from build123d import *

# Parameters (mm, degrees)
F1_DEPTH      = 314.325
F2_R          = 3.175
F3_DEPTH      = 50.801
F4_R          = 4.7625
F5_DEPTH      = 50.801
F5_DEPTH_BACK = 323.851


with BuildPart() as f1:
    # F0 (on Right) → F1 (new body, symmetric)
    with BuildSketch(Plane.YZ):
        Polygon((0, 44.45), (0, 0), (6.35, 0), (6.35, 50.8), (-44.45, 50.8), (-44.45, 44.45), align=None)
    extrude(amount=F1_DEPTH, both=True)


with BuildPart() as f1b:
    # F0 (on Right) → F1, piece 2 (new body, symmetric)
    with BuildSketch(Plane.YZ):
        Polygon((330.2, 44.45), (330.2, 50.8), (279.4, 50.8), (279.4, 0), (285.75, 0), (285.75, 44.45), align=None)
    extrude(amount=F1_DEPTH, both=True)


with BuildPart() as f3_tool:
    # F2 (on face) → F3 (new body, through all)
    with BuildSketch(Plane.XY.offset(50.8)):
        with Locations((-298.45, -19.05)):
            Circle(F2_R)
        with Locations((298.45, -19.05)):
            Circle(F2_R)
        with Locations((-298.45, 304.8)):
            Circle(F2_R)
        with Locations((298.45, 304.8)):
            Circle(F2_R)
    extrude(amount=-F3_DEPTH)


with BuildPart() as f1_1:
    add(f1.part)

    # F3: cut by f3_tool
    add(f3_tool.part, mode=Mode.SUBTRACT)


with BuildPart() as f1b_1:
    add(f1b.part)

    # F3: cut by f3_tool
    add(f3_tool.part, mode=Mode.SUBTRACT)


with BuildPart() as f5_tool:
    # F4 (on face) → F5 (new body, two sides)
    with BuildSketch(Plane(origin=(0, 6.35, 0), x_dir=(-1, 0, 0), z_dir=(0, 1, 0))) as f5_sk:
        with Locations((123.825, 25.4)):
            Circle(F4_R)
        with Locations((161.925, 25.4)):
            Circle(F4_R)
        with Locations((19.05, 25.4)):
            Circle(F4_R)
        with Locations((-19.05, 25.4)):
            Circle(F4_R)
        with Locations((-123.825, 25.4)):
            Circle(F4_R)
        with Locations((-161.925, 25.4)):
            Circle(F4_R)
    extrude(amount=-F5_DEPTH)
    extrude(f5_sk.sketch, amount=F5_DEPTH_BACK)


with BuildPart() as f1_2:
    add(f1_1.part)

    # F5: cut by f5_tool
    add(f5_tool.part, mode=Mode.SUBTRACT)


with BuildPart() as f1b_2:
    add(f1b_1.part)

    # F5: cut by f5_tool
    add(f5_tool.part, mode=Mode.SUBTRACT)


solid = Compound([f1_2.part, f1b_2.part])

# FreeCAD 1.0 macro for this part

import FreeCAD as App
import Part
import Sketcher
Q = App.Units.Quantity

doc = App.newDocument("Part")
body = doc.addObject("PartDesign::Body", "Body")

# Sketch on YZ plane
sketch1 = doc.addObject("Sketcher::SketchObject", "Sketch")
body.addObject(sketch1)
sketch1.AttachmentSupport = (doc.YZ_Plane, [""])
sketch1.MapMode = "FlatFace"
sketch1.addGeometry(Part.LineSegment(App.Vector(0, 44.45, 0), App.Vector(0, 0, 0)), False)
sketch1.addGeometry(Part.LineSegment(App.Vector(0, 0, 0), App.Vector(6.35, 0, 0)), False)
sketch1.addGeometry(Part.LineSegment(App.Vector(6.35, 0, 0), App.Vector(6.35, 50.8, 0)), False)
sketch1.addGeometry(Part.LineSegment(App.Vector(6.35, 50.8, 0), App.Vector(-44.45, 50.8, 0)), False)
sketch1.addGeometry(Part.LineSegment(App.Vector(-44.45, 50.8, 0), App.Vector(-44.45, 44.45, 0)), False)
sketch1.addGeometry(Part.LineSegment(App.Vector(-44.45, 44.45, 0), App.Vector(0, 44.45, 0)), False)
sketch1.addConstraint(Sketcher.Constraint("Coincident", 0, 2, 1, 1))
sketch1.addConstraint(Sketcher.Constraint("Coincident", 1, 2, 2, 1))
sketch1.addConstraint(Sketcher.Constraint("Coincident", 2, 2, 3, 1))
sketch1.addConstraint(Sketcher.Constraint("Coincident", 3, 2, 4, 1))
sketch1.addConstraint(Sketcher.Constraint("Coincident", 4, 2, 5, 1))
sketch1.addConstraint(Sketcher.Constraint("Coincident", 5, 2, 0, 1))
sketch1.addConstraint(Sketcher.Constraint("Vertical", 0))
sketch1.addConstraint(Sketcher.Constraint("Horizontal", 1))
sketch1.addConstraint(Sketcher.Constraint("Vertical", 2))
sketch1.addConstraint(Sketcher.Constraint("Horizontal", 3))
sketch1.addConstraint(Sketcher.Constraint("Vertical", 4))
sketch1.addConstraint(Sketcher.Constraint("Horizontal", 5))
sketch1.addConstraint(Sketcher.Constraint("Coincident", 0, 2, -1, 1))
sketch1.addConstraint(Sketcher.Constraint("Equal", 5, 0))
sketch1.addConstraint(Sketcher.Constraint("Equal", 3, 2))
sketch1.addConstraint(Sketcher.Constraint("DistanceX", 3, 2, 3, 1, Q("2 in")))
sketch1.addConstraint(Sketcher.Constraint("DistanceX", 1, 1, 1, 2, Q("0.25 in")))
pad1 = doc.addObject("PartDesign::Pad", "Pad")
body.addObject(pad1)
pad1.Profile = sketch1
pad1.Length = Q("24.75 in")
pad1.Midplane = True
body2 = doc.addObject("PartDesign::Body", "Body001")

# Sketch on YZ plane
sketch2 = doc.addObject("Sketcher::SketchObject", "Sketch001")
body2.addObject(sketch2)
sketch2.AttachmentSupport = (doc.getObject("YZ_Plane001"), [""])
sketch2.MapMode = "FlatFace"
sketch2.addGeometry(Part.LineSegment(App.Vector(330.2, 44.45, 0), App.Vector(330.2, 50.8, 0)), False)
sketch2.addGeometry(Part.LineSegment(App.Vector(330.2, 50.8, 0), App.Vector(279.4, 50.8, 0)), False)
sketch2.addGeometry(Part.LineSegment(App.Vector(279.4, 50.8, 0), App.Vector(279.4, 0, 0)), False)
sketch2.addGeometry(Part.LineSegment(App.Vector(279.4, 0, 0), App.Vector(285.75, 0, 0)), False)
sketch2.addGeometry(Part.LineSegment(App.Vector(285.75, 0, 0), App.Vector(285.75, 44.45, 0)), False)
sketch2.addGeometry(Part.LineSegment(App.Vector(285.75, 44.45, 0), App.Vector(330.2, 44.45, 0)), False)
sketch2.addConstraint(Sketcher.Constraint("Coincident", 0, 2, 1, 1))
sketch2.addConstraint(Sketcher.Constraint("Coincident", 1, 2, 2, 1))
sketch2.addConstraint(Sketcher.Constraint("Coincident", 2, 2, 3, 1))
sketch2.addConstraint(Sketcher.Constraint("Coincident", 3, 2, 4, 1))
sketch2.addConstraint(Sketcher.Constraint("Coincident", 4, 2, 5, 1))
sketch2.addConstraint(Sketcher.Constraint("Coincident", 5, 2, 0, 1))
sketch2.addConstraint(Sketcher.Constraint("Vertical", 0))
sketch2.addConstraint(Sketcher.Constraint("Horizontal", 1))
sketch2.addConstraint(Sketcher.Constraint("Vertical", 2))
sketch2.addConstraint(Sketcher.Constraint("Horizontal", 3))
sketch2.addConstraint(Sketcher.Constraint("Vertical", 4))
sketch2.addConstraint(Sketcher.Constraint("Horizontal", 5))
sketch2.addConstraint(Sketcher.Constraint("PointOnObject", 2, 2, -1))
sketch2.addConstraint(Sketcher.Constraint("Equal", 3, 0))
sketch2.addConstraint(Sketcher.Constraint("Equal", 1, 2))
sketch2.addConstraint(Sketcher.Constraint("DistanceX", 1, 2, 1, 1, Q("2 in")))
sketch2.addConstraint(Sketcher.Constraint("DistanceX", -1, 1, 0, 2, Q("13 in")))
sketch2.addConstraint(Sketcher.Constraint("DistanceX", 3, 1, 3, 2, Q("0.25 in")))
pad2 = doc.addObject("PartDesign::Pad", "Pad001")
body2.addObject(pad2)
pad2.Profile = sketch2
pad2.Length = Q("24.75 in")
pad2.Midplane = True
body3 = doc.addObject("PartDesign::Body", "Body002")
body3.AllowCompound = True

# Sketch on XY plane
sketch3 = doc.addObject("Sketcher::SketchObject", "Sketch002")
body3.addObject(sketch3)
sketch3.AttachmentSupport = (doc.getObject("XY_Plane002"), [""])
sketch3.MapMode = "FlatFace"
sketch3.AttachmentOffset = App.Placement(App.Vector(0, 0, 2 * 25.4), App.Rotation())
sketch3.addGeometry(Part.Circle(App.Vector(-298.45, -19.05, 0), App.Vector(0, 0, 1), 3.175), False)
sketch3.addGeometry(Part.Circle(App.Vector(298.45, -19.05, 0), App.Vector(0, 0, 1), 3.175), False)
sketch3.addGeometry(Part.Circle(App.Vector(-298.45, 304.8, 0), App.Vector(0, 0, 1), 3.175), False)
sketch3.addGeometry(Part.Circle(App.Vector(298.45, 304.8, 0), App.Vector(0, 0, 1), 3.175), False)
sketch3.addConstraint(Sketcher.Constraint("Equal", 0, 1))
sketch3.addConstraint(Sketcher.Constraint("Equal", 1, 2))
sketch3.addConstraint(Sketcher.Constraint("Equal", 2, 3))
sketch3.addConstraint(Sketcher.Constraint("Symmetric", 0, 3, 1, 3, -2))
sketch3.addConstraint(Sketcher.Constraint("Symmetric", 2, 3, 3, 3, -2))
sketch3.addConstraint(Sketcher.Constraint("Vertical", 0, 3, 2, 3))
sketch3.addConstraint(Sketcher.Constraint("Diameter", 0, Q("0.25 in")))
sketch3.addConstraint(Sketcher.Constraint("DistanceY", -1, 1, 2, 3, Q("12 in")))
sketch3.addConstraint(Sketcher.Constraint("DistanceX", 0, 3, 1, 3, Q("23.5 in")))
sketch3.addConstraint(Sketcher.Constraint("DistanceY", 0, 3, -1, 1, Q("0.75 in")))
pad3 = doc.addObject("PartDesign::Pad", "Pad002")
body3.addObject(pad3)
pad3.Profile = sketch3
pad3.Length = 50.801
pad3.Reversed = True
doc.recompute()

body4 = doc.addObject("PartDesign::Body", "Body003")
body4.BaseFeature = body3
boolean = doc.addObject("PartDesign::Boolean", "Boolean")
body.addObject(boolean)
boolean.Type = "Cut"
boolean.addObjects([body4])
doc.recompute()

boolean2 = doc.addObject("PartDesign::Boolean", "Boolean001")
body2.addObject(boolean2)
boolean2.Type = "Cut"
boolean2.addObjects([body3])
body5 = doc.addObject("PartDesign::Body", "Body004")
body5.AllowCompound = True

# Sketch on XZ plane
sketch4 = doc.addObject("Sketcher::SketchObject", "Sketch003")
body5.addObject(sketch4)
sketch4.AttachmentSupport = (doc.getObject("XZ_Plane004"), [""])
sketch4.MapMode = "FlatFace"
sketch4.AttachmentOffset = App.Placement(App.Vector(0, 0, -0.25 * 25.4), App.Rotation())
sketch4.addGeometry(Part.Circle(App.Vector(-123.825, 25.4, 0), App.Vector(0, 0, 1), 4.7625), False)
sketch4.addGeometry(Part.Circle(App.Vector(-161.925, 25.4, 0), App.Vector(0, 0, 1), 4.7625), False)
sketch4.addGeometry(Part.Circle(App.Vector(-19.05, 25.4, 0), App.Vector(0, 0, 1), 4.7625), False)
sketch4.addGeometry(Part.Circle(App.Vector(19.05, 25.4, 0), App.Vector(0, 0, 1), 4.7625), False)
sketch4.addGeometry(Part.Circle(App.Vector(123.825, 25.4, 0), App.Vector(0, 0, 1), 4.7625), False)
sketch4.addGeometry(Part.Circle(App.Vector(161.925, 25.4, 0), App.Vector(0, 0, 1), 4.7625), False)
sketch4.addConstraint(Sketcher.Constraint("Equal", 0, 1))
sketch4.addConstraint(Sketcher.Constraint("Equal", 1, 2))
sketch4.addConstraint(Sketcher.Constraint("Equal", 2, 3))
sketch4.addConstraint(Sketcher.Constraint("Equal", 3, 4))
sketch4.addConstraint(Sketcher.Constraint("Equal", 4, 5))
sketch4.addConstraint(Sketcher.Constraint("Symmetric", 2, 3, 3, 3, -2))
sketch4.addConstraint(Sketcher.Constraint("Symmetric", 0, 3, 4, 3, -2))
sketch4.addConstraint(Sketcher.Constraint("Symmetric", 1, 3, 5, 3, -2))
sketch4.addConstraint(Sketcher.Constraint("Horizontal", 0, 3, 1, 3))
sketch4.addConstraint(Sketcher.Constraint("Horizontal", 1, 3, 2, 3))
sketch4.addConstraint(Sketcher.Constraint("Diameter", 0, Q("0.375 in")))
sketch4.addConstraint(Sketcher.Constraint("DistanceY", -1, 1, 0, 3, Q("1 in")))
sketch4.addConstraint(Sketcher.Constraint("DistanceX", 1, 3, 0, 3, Q("1.5 in")))
sketch4.addConstraint(Sketcher.Constraint("DistanceX", 2, 3, 3, 3, Q("1.5 in")))
sketch4.addConstraint(Sketcher.Constraint("DistanceX", 0, 3, 4, 3, Q("9.75 in")))
pad4 = doc.addObject("PartDesign::Pad", "Pad003")
body5.addObject(pad4)
pad4.Profile = sketch4
pad4.Type = "TwoLengths"
pad4.Length = 50.801
pad4.Length2 = 323.851
doc.recompute()

body6 = doc.addObject("PartDesign::Body", "Body005")
body6.BaseFeature = body5
boolean3 = doc.addObject("PartDesign::Boolean", "Boolean002")
body.addObject(boolean3)
boolean3.Type = "Cut"
boolean3.addObjects([body6])
doc.recompute()

boolean4 = doc.addObject("PartDesign::Boolean", "Boolean003")
body2.addObject(boolean4)
boolean4.Type = "Cut"
boolean4.addObjects([body5])

doc.recompute()
